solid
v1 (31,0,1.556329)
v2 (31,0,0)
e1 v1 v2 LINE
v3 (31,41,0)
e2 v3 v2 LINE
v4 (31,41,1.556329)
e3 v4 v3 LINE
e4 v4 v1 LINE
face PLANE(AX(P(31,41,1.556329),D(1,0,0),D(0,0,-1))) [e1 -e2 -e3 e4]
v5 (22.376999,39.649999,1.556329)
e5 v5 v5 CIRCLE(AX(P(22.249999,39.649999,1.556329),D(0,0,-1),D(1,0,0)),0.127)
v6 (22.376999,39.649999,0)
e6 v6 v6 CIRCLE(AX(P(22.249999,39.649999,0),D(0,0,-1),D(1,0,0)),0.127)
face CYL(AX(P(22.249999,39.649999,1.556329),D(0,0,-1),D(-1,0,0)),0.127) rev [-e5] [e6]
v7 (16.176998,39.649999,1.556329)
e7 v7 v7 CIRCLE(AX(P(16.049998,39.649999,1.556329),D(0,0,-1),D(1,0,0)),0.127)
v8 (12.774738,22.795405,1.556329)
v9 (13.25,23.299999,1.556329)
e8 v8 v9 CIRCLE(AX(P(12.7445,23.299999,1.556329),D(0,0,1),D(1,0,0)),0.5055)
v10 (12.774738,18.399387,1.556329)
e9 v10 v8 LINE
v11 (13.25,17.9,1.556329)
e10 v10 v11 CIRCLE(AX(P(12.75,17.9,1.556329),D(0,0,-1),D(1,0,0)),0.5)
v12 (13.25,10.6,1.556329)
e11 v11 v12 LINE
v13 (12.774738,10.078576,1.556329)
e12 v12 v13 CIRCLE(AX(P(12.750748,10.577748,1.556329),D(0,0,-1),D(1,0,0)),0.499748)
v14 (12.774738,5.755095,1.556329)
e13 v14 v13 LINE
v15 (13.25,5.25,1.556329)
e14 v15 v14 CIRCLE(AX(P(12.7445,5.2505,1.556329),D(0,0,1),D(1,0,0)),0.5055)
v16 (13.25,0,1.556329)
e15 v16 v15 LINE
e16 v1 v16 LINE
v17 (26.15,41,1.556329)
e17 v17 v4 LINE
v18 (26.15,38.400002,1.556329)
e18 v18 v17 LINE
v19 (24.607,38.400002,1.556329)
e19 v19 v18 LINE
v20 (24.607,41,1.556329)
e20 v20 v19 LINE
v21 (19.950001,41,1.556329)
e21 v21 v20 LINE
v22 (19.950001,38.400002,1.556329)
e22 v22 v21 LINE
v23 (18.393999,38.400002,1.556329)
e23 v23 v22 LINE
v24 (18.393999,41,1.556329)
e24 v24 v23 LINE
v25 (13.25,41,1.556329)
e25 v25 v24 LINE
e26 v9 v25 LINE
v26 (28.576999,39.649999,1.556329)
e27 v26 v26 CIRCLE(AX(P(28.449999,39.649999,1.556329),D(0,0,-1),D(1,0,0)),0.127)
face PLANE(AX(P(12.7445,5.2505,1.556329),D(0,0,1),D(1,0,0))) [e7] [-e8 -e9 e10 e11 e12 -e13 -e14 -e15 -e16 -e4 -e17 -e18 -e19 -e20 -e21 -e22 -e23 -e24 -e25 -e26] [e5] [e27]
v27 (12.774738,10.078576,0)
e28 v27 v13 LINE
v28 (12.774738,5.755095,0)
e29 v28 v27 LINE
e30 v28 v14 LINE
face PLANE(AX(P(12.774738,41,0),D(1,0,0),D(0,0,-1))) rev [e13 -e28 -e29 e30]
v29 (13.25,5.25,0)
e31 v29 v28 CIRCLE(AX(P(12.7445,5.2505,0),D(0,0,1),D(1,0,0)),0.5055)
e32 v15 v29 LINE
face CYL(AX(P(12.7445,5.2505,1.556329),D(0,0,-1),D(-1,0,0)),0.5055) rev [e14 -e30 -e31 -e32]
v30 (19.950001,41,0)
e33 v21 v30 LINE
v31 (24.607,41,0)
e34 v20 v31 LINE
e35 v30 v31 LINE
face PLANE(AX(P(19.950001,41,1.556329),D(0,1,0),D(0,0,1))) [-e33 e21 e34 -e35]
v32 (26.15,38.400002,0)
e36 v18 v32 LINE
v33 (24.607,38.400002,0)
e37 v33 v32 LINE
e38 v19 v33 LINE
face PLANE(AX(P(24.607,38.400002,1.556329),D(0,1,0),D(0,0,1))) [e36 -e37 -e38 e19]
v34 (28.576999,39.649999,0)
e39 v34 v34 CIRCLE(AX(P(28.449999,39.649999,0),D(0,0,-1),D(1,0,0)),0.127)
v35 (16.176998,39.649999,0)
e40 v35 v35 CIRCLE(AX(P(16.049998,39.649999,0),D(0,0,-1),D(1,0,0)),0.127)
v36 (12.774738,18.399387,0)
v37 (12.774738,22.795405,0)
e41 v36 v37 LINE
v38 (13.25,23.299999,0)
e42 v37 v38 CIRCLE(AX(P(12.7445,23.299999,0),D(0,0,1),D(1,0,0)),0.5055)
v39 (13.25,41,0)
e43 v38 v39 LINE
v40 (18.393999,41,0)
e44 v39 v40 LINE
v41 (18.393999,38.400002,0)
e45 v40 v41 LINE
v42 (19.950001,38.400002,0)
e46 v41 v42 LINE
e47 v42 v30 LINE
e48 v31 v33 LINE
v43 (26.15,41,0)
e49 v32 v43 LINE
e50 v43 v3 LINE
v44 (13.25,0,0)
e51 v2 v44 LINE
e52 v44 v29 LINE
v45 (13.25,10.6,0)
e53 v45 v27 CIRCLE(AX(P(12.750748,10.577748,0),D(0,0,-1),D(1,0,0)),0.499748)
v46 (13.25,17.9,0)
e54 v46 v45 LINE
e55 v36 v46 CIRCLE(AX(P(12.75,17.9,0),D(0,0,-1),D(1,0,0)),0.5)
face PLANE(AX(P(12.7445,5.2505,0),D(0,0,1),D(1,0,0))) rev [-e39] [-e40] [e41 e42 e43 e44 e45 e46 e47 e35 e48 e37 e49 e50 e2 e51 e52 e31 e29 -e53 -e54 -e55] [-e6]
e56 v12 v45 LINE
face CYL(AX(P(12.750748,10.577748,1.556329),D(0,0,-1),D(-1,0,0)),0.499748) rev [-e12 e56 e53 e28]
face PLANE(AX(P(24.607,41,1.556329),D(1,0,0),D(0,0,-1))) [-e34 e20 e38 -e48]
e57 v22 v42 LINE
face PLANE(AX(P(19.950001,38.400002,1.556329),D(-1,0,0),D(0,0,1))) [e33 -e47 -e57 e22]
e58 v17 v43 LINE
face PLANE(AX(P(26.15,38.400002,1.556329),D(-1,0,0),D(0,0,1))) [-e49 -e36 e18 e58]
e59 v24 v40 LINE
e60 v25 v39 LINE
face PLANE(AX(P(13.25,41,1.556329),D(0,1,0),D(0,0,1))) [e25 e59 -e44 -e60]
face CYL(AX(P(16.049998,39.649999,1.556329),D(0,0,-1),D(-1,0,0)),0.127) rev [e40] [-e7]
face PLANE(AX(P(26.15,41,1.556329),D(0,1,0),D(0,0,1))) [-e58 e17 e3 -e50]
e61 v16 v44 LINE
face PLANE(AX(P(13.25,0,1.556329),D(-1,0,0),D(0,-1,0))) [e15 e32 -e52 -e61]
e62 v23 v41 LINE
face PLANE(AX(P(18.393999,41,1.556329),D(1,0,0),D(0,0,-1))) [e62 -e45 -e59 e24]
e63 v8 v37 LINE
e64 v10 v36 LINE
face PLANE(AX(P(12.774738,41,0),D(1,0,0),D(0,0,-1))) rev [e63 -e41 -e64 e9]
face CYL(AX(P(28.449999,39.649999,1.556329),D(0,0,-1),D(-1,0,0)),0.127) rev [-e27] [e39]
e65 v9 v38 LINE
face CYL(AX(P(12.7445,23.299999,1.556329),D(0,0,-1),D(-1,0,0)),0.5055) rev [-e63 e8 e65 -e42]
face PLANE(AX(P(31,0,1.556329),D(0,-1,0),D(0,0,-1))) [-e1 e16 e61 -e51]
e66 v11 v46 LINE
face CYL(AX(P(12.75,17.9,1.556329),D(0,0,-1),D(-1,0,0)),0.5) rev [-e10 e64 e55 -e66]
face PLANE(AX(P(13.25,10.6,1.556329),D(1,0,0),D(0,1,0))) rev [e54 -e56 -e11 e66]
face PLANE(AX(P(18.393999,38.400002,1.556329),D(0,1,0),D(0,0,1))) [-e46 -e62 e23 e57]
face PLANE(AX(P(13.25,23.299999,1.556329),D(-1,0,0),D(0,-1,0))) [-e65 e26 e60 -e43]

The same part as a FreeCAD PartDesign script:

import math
import FreeCAD as App
import Part
import Sketcher
Q = App.Units.Quantity

doc = App.newDocument("Part")
body = doc.addObject("PartDesign::Body", "Body")

# Sketch on XY plane
sketch1 = body.newObject("Sketcher::SketchObject", "Sketch")
sketch1.AttachmentSupport = (doc.getObject("XY_Plane"), [""])
sketch1.MapMode = "FlatFace"
sketch1.addGeometry(Part.LineSegment(App.Vector(12.24, 5.25, 0), App.Vector(12.24, 0, 0)), False)
sketch1.addGeometry(Part.LineSegment(App.Vector(12.24, 0, 0), App.Vector(0, 0, 0)), False)
sketch1.addGeometry(Part.LineSegment(App.Vector(0, 0, 0), App.Vector(0, 41, 0)), False)
sketch1.addGeometry(Part.LineSegment(App.Vector(0, 41, 0), App.Vector(12.24, 41, 0)), False)
sketch1.addGeometry(Part.LineSegment(App.Vector(12.24, 41, 0), App.Vector(12.24, 23.3, 0)), False)
sketch1.addGeometry(Part.ArcOfCircle(Part.Circle(App.Vector(12.74, 23.3, 0), App.Vector(0, 0, 1), 0.51), math.radians(180), math.radians(360)), False)
sketch1.addGeometry(Part.LineSegment(App.Vector(13.25, 23.3, 0), App.Vector(13.25, 41, 0)), False)
sketch1.addGeometry(Part.LineSegment(App.Vector(13.25, 41, 0), App.Vector(18.39, 41, 0)), False)
sketch1.addGeometry(Part.LineSegment(App.Vector(18.39, 41, 0), App.Vector(18.39, 38.4, 0)), False)
sketch1.addGeometry(Part.LineSegment(App.Vector(18.39, 38.4, 0), App.Vector(19.95, 38.4, 0)), False)
sketch1.addGeometry(Part.LineSegment(App.Vector(19.95, 38.4, 0), App.Vector(19.95, 41, 0)), False)
sketch1.addGeometry(Part.LineSegment(App.Vector(19.95, 41, 0), App.Vector(24.61, 41, 0)), False)
sketch1.addGeometry(Part.LineSegment(App.Vector(24.61, 41, 0), App.Vector(24.61, 38.4, 0)), False)
sketch1.addGeometry(Part.LineSegment(App.Vector(24.61, 38.4, 0), App.Vector(26.15, 38.4, 0)), False)
sketch1.addGeometry(Part.LineSegment(App.Vector(26.15, 38.4, 0), App.Vector(26.15, 41, 0)), False)
sketch1.addGeometry(Part.LineSegment(App.Vector(26.15, 41, 0), App.Vector(31, 41, 0)), False)
sketch1.addGeometry(Part.LineSegment(App.Vector(31, 41, 0), App.Vector(31, 0, 0)), False)
sketch1.addGeometry(Part.LineSegment(App.Vector(31, 0, 0), App.Vector(13.25, 0, 0)), False)
sketch1.addGeometry(Part.LineSegment(App.Vector(13.25, 0, 0), App.Vector(13.25, 5.25, 0)), False)
sketch1.addGeometry(Part.ArcOfCircle(Part.Circle(App.Vector(12.74, 5.25, 0), App.Vector(0, 0, 1), 0.51), math.radians(0), math.radians(180)), False)
sketch1.addGeometry(Part.Circle(App.Vector(1.05, 1.06, 0), App.Vector(0, 0, 1), 0.5), False)
sketch1.addGeometry(Part.Circle(App.Vector(1.05, 3.6, 0), App.Vector(0, 0, 1), 0.5), False)
sketch1.addGeometry(Part.Circle(App.Vector(3.59, 6.14, 0), App.Vector(0, 0, 1), 0.5), False)
sketch1.addGeometry(Part.Circle(App.Vector(1.05, 6.14, 0), App.Vector(0, 0, 1), 0.5), False)
sketch1.addGeometry(Part.ArcOfCircle(Part.Circle(App.Vector(12.75, 17.9, 0), App.Vector(0, 0, 1), 0.5), math.radians(0), math.radians(180)), False)
sketch1.addGeometry(Part.LineSegment(App.Vector(12.25, 17.9, 0), App.Vector(12.25, 10.58, 0)), False)
sketch1.addGeometry(Part.ArcOfCircle(Part.Circle(App.Vector(12.75, 10.58, 0), App.Vector(0, 0, 1), 0.5), math.radians(180), math.radians(363)), False)
sketch1.addGeometry(Part.LineSegment(App.Vector(13.25, 10.6, 0), App.Vector(13.25, 17.9, 0)), False)
sketch1.addGeometry(Part.Circle(App.Vector(28.45, 39.65, 0), App.Vector(0, 0, 1), 0.13), False)
sketch1.addGeometry(Part.Circle(App.Vector(22.25, 39.65, 0), App.Vector(0, 0, 1), 0.13), False)
sketch1.addGeometry(Part.Circle(App.Vector(16.05, 39.65, 0), App.Vector(0, 0, 1), 0.13), False)
sketch1.addGeometry(Part.Circle(App.Vector(8.79, 35.82, 0), App.Vector(0, 0, 1), 0.4), False)
sketch1.addGeometry(Part.Circle(App.Vector(6.25, 38.36, 0), App.Vector(0, 0, 1), 0.4), False)
sketch1.addGeometry(Part.Circle(App.Vector(3.71, 35.82, 0), App.Vector(0, 0, 1), 0.4), False)
sketch1.addConstraint(Sketcher.Constraint("Coincident", 0, 2, 1, 1))
sketch1.addConstraint(Sketcher.Constraint("Coincident", 1, 2, 2, 1))
sketch1.addConstraint(Sketcher.Constraint("Coincident", 2, 2, 3, 1))
sketch1.addConstraint(Sketcher.Constraint("Coincident", 3, 2, 4, 1))
sketch1.addConstraint(Sketcher.Constraint("Tangent", 4, 2, 5, 1))
sketch1.addConstraint(Sketcher.Constraint("Tangent", 5, 2, 6, 1))
sketch1.addConstraint(Sketcher.Constraint("Coincident", 6, 2, 7, 1))
sketch1.addConstraint(Sketcher.Constraint("Coincident", 7, 2, 8, 1))
sketch1.addConstraint(Sketcher.Constraint("Coincident", 8, 2, 9, 1))
sketch1.addConstraint(Sketcher.Constraint("Coincident", 9, 2, 10, 1))
sketch1.addConstraint(Sketcher.Constraint("Coincident", 10, 2, 11, 1))
sketch1.addConstraint(Sketcher.Constraint("Coincident", 11, 2, 12, 1))
sketch1.addConstraint(Sketcher.Constraint("Coincident", 12, 2, 13, 1))
sketch1.addConstraint(Sketcher.Constraint("Coincident", 13, 2, 14, 1))
sketch1.addConstraint(Sketcher.Constraint("Coincident", 14, 2, 15, 1))
sketch1.addConstraint(Sketcher.Constraint("Coincident", 15, 2, 16, 1))
sketch1.addConstraint(Sketcher.Constraint("Coincident", 16, 2, 17, 1))
sketch1.addConstraint(Sketcher.Constraint("Coincident", 17, 2, 18, 1))
sketch1.addConstraint(Sketcher.Constraint("Coincident", 18, 2, 19, 1))
sketch1.addConstraint(Sketcher.Constraint("Coincident", 19, 2, 0, 1))
sketch1.addConstraint(Sketcher.Constraint("Tangent", 24, 2, 25, 1))
sketch1.addConstraint(Sketcher.Constraint("Coincident", 25, 2, 26, 1))
sketch1.addConstraint(Sketcher.Constraint("Coincident", 26, 2, 27, 1))
sketch1.addConstraint(Sketcher.Constraint("Tangent", 27, 2, 24, 1))
sketch1.addConstraint(Sketcher.Constraint("Vertical", 0))
sketch1.addConstraint(Sketcher.Constraint("Horizontal", 1))
sketch1.addConstraint(Sketcher.Constraint("Vertical", 2))
sketch1.addConstraint(Sketcher.Constraint("Horizontal", 3))
sketch1.addConstraint(Sketcher.Constraint("Vertical", 4))
sketch1.addConstraint(Sketcher.Constraint("Vertical", 6))
sketch1.addConstraint(Sketcher.Constraint("Horizontal", 7))
sketch1.addConstraint(Sketcher.Constraint("Vertical", 8))
sketch1.addConstraint(Sketcher.Constraint("Horizontal", 9))
sketch1.addConstraint(Sketcher.Constraint("Vertical", 10))
sketch1.addConstraint(Sketcher.Constraint("Horizontal", 11))
sketch1.addConstraint(Sketcher.Constraint("Vertical", 12))
sketch1.addConstraint(Sketcher.Constraint("Horizontal", 13))
sketch1.addConstraint(Sketcher.Constraint("Vertical", 14))
sketch1.addConstraint(Sketcher.Constraint("Horizontal", 15))
sketch1.addConstraint(Sketcher.Constraint("Vertical", 16))
sketch1.addConstraint(Sketcher.Constraint("Horizontal", 17))
sketch1.addConstraint(Sketcher.Constraint("Vertical", 18))
sketch1.addConstraint(Sketcher.Constraint("Vertical", 27))
sketch1.addConstraint(Sketcher.Constraint("Coincident", 1, 2, -1, 1))
sketch1.addConstraint(Sketcher.Constraint("Equal", 5, 19))
sketch1.addConstraint(Sketcher.Constraint("Equal", 20, 21))
sketch1.addConstraint(Sketcher.Constraint("Equal", 21, 22))
sketch1.addConstraint(Sketcher.Constraint("Equal", 22, 23))
sketch1.addConstraint(Sketcher.Constraint("Equal", 28, 29))
sketch1.addConstraint(Sketcher.Constraint("Equal", 29, 30))
sketch1.addConstraint(Sketcher.Constraint("Equal", 31, 32))
sketch1.addConstraint(Sketcher.Constraint("Equal", 32, 33))
sketch1.addConstraint(Sketcher.Constraint("PointOnObject", 16, 2, -1))
sketch1.addConstraint(Sketcher.Constraint("Horizontal", 22, 3, 23, 3))
sketch1.addConstraint(Sketcher.Constraint("Horizontal", 28, 3, 29, 3))
sketch1.addConstraint(Sketcher.Constraint("Horizontal", 29, 3, 30, 3))
sketch1.addConstraint(Sketcher.Constraint("Horizontal", 31, 3, 33, 3))
sketch1.addConstraint(Sketcher.Constraint("Horizontal", 3, 2, 6, 2))
sketch1.addConstraint(Sketcher.Constraint("Horizontal", 7, 2, 10, 2))
sketch1.addConstraint(Sketcher.Constraint("Horizontal", 9, 2, 12, 2))
sketch1.addConstraint(Sketcher.Constraint("Horizontal", 11, 2, 14, 2))
sketch1.addConstraint(Sketcher.Constraint("Horizontal", 18, 2, 19, 2))
sketch1.addConstraint(Sketcher.Constraint("Vertical", 5, 3, 19, 3))
sketch1.addConstraint(Sketcher.Constraint("Vertical", 20, 3, 21, 3))
sketch1.addConstraint(Sketcher.Constraint("Vertical", 21, 3, 23, 3))
sketch1.addConstraint(Sketcher.Constraint("Vertical", 18, 2, 26, 2))
sketch1.addConstraint(Sketcher.Constraint("Diameter", 31, Q("0.799998 mm")))
sketch1.addConstraint(Sketcher.Constraint("Radius", 24, Q("0.5 mm")))
sketch1.addConstraint(Sketcher.Constraint("DistanceY", 2, 1, 2, 2, Q("41 mm")))
sketch1.addConstraint(Sketcher.Constraint("Diameter", 28, Q("0.254 mm")))
sketch1.addConstraint(Sketcher.Constraint("DistanceY", 4, 2, 4, 1, Q("17.700001 mm")))
sketch1.addConstraint(Sketcher.Constraint("DistanceY", 8, 2, 8, 1, Q("2.599998 mm")))
sketch1.addConstraint(Sketcher.Constraint("DistanceY", 27, 1, 27, 2, Q("7.299999 mm")))
sketch1.addConstraint(Sketcher.Constraint("DistanceX", -1, 1, 15, 2, Q("31 mm")))
sketch1.addConstraint(Sketcher.Constraint("DistanceX", 32, 3, 29, 3, Q("15.999998 mm")))
sketch1.addConstraint(Sketcher.Constraint("DistanceX", 32, 3, 6, 2, Q("7 mm")))
sketch1.addConstraint(Sketcher.Constraint("Diameter", 20, Q("0.9906 mm")))
sketch1.addConstraint(Sketcher.Constraint("DistanceX", 15, 1, 15, 2, Q("4.85 mm")))
sketch1.addConstraint(Sketcher.Constraint("DistanceX", 17, 2, 17, 1, Q("17.75 mm")))
sketch1.addConstraint(Sketcher.Constraint("DistanceY", 0, 2, 0, 1, Q("5.25 mm")))
sketch1.addConstraint(Sketcher.Constraint("DistanceY", -1, 1, 21, 3, Q("3.6 mm")))
sketch1.addConstraint(Sketcher.Constraint("DistanceY", -1, 1, 24, 3, Q("17.9 mm")))
sketch1.addConstraint(Sketcher.Constraint("Radius", 5, Q("0.5055 mm")))
sketch1.addConstraint(Sketcher.Constraint("DistanceX", 23, 3, 24, 3, Q("11.7 mm")))
sketch1.addConstraint(Sketcher.Constraint("DistanceX", 24, 3, 28, 3, Q("15.699999 mm")))
sketch1.addConstraint(Sketcher.Constraint("DistanceX", 30, 3, 29, 3, Q("6.2 mm")))
sketch1.addConstraint(Sketcher.Constraint("DistanceX", 6, 2, 9, 2, Q("6.700001 mm")))
sketch1.addConstraint(Sketcher.Constraint("DistanceX", 7, 1, 7, 2, Q("5.143999 mm")))
sketch1.addConstraint(Sketcher.Constraint("DistanceX", 11, 1, 11, 2, Q("4.657 mm")))
sketch1.addConstraint(Sketcher.Constraint("DistanceY", -1, 1, 20, 3, Q("1.06 mm")))
sketch1.addConstraint(Sketcher.Constraint("DistanceX", -1, 1, 22, 3, Q("3.59 mm")))
sketch1.addConstraint(Sketcher.Constraint("DistanceY", -1, 1, 22, 3, Q("6.14 mm")))
sketch1.addConstraint(Sketcher.Constraint("DistanceY", -1, 1, 28, 3, Q("39.649999 mm")))
sketch1.addConstraint(Sketcher.Constraint("DistanceX", -1, 1, 31, 3, Q("8.79 mm")))
sketch1.addConstraint(Sketcher.Constraint("DistanceX", -1, 1, 33, 3, Q("3.71 mm")))
sketch1.addConstraint(Sketcher.Constraint("DistanceY", 31, 3, 32, 3, Q("2.54 mm")))
sketch1.addConstraint(Sketcher.Constraint("DistanceY", -1, 1, 31, 3, Q("35.815001 mm")))
sketch1.addConstraint(Sketcher.Constraint("DistanceX", -1, 1, 25, 2, Q("12.251 mm")))
sketch1.addConstraint(Sketcher.Constraint("DistanceY", -1, 1, 25, 2, Q("10.578 mm")))
sketch1.addConstraint(Sketcher.Constraint("Radius", 26, Q("0.499748 mm")))
sketch1.addConstraint(Sketcher.Constraint("DistanceY", -1, 1, 19, 3, Q("5.2505 mm")))
pad1 = body.newObject("PartDesign::Pad", "Pad")
pad1.Profile = sketch1
pad1.Length = 1.556329

# Sketch on XY plane
sketch2 = body.newObject("Sketcher::SketchObject", "Sketch001")
sketch2.AttachmentSupport = (doc.getObject("XY_Plane"), [""])
sketch2.MapMode = "FlatFace"
sketch2.AttachmentOffset = App.Placement(App.Vector(0, 0, 1.556329), App.Rotation())
sketch2.addGeometry(Part.LineSegment(App.Vector(0, 41, 0), App.Vector(0, 0, 0)), False)
sketch2.addGeometry(Part.LineSegment(App.Vector(0, 0, 0), App.Vector(13, 0, 0)), False)
sketch2.addGeometry(Part.LineSegment(App.Vector(13, 0, 0), App.Vector(13, 41, 0)), False)
sketch2.addGeometry(Part.LineSegment(App.Vector(13, 41, 0), App.Vector(0, 41, 0)), False)
sketch2.addConstraint(Sketcher.Constraint("Coincident", 0, 2, 1, 1))
sketch2.addConstraint(Sketcher.Constraint("Coincident", 1, 2, 2, 1))
sketch2.addConstraint(Sketcher.Constraint("Coincident", 2, 2, 3, 1))
sketch2.addConstraint(Sketcher.Constraint("Coincident", 3, 2, 0, 1))
sketch2.addConstraint(Sketcher.Constraint("Vertical", 0))
sketch2.addConstraint(Sketcher.Constraint("Horizontal", 1))
sketch2.addConstraint(Sketcher.Constraint("Vertical", 2))
sketch2.addConstraint(Sketcher.Constraint("Horizontal", 3))
sketch2.addConstraint(Sketcher.Constraint("Coincident", 0, 2, -1, 1))
sketch2.addConstraint(Sketcher.Constraint("DistanceY", 0, 2, 0, 1, Q("41 mm")))
sketch2.addConstraint(Sketcher.Constraint("DistanceX", 1, 1, 1, 2, Q("12.774738 mm")))
pocket1 = body.newObject("PartDesign::Pocket", "Pocket")
pocket1.Profile = sketch2
pocket1.Type = "ThroughAll"

doc.recompute()
